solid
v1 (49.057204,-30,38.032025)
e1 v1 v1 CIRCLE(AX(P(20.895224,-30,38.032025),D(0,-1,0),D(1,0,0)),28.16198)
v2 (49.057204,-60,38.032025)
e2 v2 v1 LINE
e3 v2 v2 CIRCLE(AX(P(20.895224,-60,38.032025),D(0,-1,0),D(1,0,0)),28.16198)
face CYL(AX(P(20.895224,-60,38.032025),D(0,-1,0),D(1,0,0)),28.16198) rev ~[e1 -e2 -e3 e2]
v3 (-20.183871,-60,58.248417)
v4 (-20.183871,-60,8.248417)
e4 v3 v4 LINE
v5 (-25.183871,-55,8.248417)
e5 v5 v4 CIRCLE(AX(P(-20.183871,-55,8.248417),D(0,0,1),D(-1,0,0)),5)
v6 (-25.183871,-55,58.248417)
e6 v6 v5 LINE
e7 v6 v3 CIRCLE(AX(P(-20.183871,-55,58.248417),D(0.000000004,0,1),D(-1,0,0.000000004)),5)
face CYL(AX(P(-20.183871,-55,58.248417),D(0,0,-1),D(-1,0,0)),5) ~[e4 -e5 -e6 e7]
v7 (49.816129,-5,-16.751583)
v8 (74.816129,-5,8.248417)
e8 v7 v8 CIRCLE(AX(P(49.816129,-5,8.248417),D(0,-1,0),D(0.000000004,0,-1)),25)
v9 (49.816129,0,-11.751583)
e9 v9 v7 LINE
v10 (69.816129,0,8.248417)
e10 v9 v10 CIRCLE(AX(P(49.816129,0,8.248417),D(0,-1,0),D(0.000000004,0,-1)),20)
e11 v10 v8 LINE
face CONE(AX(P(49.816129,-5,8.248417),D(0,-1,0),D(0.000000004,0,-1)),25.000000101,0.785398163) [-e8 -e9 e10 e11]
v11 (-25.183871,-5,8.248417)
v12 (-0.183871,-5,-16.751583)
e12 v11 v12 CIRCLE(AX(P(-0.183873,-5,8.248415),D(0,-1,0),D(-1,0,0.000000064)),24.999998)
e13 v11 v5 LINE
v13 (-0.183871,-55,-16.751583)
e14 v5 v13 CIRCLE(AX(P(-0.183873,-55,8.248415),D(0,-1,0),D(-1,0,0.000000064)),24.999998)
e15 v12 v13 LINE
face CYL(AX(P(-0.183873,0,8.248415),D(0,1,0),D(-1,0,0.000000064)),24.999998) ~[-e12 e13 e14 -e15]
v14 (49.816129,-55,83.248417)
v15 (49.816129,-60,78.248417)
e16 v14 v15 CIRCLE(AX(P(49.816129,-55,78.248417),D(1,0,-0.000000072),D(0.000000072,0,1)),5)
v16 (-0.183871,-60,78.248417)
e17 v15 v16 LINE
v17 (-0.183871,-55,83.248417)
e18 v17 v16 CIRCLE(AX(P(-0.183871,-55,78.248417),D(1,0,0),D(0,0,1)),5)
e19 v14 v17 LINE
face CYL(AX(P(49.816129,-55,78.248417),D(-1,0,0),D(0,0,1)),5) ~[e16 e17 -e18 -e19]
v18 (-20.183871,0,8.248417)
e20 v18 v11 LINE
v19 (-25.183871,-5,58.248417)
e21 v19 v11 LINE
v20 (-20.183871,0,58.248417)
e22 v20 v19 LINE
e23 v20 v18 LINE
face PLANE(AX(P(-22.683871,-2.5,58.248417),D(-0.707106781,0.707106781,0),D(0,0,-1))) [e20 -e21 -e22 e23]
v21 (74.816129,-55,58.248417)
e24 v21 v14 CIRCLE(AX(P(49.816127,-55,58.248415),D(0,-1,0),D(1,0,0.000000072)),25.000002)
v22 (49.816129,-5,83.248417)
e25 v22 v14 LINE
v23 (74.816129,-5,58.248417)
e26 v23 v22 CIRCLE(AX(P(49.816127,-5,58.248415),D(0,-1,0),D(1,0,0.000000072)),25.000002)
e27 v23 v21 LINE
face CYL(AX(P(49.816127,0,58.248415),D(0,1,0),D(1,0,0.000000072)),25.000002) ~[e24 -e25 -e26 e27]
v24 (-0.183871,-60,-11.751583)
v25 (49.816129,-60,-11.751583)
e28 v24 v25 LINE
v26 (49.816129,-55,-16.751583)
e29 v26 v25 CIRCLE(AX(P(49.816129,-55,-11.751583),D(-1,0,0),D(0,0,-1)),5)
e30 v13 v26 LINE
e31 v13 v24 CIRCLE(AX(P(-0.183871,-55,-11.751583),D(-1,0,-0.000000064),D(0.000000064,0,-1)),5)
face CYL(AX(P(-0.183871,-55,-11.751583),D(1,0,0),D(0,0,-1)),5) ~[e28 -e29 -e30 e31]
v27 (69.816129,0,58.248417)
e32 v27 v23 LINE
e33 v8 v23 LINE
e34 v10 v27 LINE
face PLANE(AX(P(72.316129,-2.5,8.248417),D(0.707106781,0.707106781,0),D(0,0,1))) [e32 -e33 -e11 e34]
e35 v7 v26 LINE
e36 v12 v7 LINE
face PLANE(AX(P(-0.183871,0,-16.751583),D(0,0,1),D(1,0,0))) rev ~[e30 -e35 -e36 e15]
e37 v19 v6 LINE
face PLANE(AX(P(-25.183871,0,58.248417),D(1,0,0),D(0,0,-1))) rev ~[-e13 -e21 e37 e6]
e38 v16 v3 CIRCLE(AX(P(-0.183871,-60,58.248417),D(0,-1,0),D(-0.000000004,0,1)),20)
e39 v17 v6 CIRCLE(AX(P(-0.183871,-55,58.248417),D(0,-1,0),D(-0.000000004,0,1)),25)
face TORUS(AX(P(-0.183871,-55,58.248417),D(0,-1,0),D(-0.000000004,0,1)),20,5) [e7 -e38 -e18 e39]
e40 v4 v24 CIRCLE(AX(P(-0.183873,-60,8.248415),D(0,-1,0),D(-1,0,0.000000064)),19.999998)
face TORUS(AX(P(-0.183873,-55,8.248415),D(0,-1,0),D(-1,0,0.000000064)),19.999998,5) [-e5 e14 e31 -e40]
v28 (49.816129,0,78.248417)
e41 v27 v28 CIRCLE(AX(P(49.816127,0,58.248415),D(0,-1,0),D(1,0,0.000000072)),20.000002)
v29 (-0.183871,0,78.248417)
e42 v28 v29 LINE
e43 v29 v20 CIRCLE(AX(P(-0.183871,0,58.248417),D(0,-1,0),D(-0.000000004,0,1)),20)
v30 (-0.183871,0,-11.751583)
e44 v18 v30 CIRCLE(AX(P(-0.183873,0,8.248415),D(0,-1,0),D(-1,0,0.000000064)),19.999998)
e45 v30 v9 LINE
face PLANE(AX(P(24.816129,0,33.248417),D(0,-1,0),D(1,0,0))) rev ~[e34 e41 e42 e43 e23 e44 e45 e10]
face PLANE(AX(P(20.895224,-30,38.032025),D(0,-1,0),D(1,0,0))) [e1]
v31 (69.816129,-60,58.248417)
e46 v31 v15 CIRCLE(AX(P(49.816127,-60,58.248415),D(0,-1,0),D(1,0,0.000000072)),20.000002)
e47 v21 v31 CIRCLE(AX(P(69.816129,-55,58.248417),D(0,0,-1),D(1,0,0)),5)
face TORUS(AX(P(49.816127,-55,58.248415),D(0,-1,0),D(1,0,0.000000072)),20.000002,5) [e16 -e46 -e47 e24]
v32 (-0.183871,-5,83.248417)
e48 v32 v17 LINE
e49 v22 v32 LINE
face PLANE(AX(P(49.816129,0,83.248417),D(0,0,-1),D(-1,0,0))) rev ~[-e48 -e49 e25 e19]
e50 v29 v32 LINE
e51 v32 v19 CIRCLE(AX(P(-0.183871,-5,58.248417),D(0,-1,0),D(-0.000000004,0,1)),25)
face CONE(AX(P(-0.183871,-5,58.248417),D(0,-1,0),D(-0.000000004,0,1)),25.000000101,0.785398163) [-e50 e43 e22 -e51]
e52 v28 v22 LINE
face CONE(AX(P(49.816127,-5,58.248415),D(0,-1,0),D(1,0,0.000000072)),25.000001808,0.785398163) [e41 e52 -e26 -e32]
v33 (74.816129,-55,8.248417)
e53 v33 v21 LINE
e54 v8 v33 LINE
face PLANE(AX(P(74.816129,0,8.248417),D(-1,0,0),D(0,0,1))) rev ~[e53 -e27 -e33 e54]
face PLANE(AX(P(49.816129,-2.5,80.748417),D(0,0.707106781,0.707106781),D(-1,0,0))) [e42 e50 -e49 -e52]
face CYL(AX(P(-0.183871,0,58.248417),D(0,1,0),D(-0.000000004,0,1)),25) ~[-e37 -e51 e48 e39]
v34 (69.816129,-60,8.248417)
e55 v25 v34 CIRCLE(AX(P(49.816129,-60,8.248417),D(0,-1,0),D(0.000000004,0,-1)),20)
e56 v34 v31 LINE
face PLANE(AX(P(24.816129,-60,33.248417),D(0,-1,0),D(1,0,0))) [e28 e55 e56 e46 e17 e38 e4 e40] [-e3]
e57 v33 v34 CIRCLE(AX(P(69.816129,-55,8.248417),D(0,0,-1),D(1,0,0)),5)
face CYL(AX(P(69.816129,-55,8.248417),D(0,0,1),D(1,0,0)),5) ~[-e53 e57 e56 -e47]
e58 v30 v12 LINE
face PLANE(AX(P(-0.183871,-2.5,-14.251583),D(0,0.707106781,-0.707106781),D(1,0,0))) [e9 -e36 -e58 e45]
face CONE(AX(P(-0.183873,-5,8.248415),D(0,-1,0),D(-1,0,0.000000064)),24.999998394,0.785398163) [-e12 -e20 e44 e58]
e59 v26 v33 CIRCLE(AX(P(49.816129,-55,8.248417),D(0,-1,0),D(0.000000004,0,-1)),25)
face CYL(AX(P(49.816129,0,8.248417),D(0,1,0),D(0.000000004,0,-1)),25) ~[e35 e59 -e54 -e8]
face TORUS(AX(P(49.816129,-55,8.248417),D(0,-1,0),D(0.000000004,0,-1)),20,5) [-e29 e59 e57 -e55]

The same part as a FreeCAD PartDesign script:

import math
import FreeCAD as App
import Part
import Sketcher
from FreeCAD import Vector
Q = App.Units.Quantity


def edges_at(feature, points):
    """Names of the edges that pass closest to the given points."""
    edges = feature.Shape.Edges
    near = lambda p: min(range(len(edges)), key=lambda i: edges[i].distToShape(Part.Vertex(*p))[0])
    return sorted({f"Edge{near(p) + 1}" for p in points})

doc = App.newDocument("Part")
body = doc.addObject("PartDesign::Body", "Body")

# Sketch on XZ plane
sketch1 = doc.addObject("Sketcher::SketchObject", "Sketch")
body.addObject(sketch1)
sketch1.AttachmentSupport = (doc.XZ_Plane, [""])
sketch1.MapMode = "FlatFace"
sketch1.addGeometry([
    Part.LineSegment(Vector(50, 83, 0), Vector(0, 83, 0)),  # 0
    Part.ArcOfCircle(Part.Circle(Vector(0, 58, 0), Vector(0, 0, 1), 25), math.radians(90), math.radians(180)),  # 1
    Part.LineSegment(Vector(-25, 58, 0), Vector(-25, 8, 0)),  # 2
    Part.ArcOfCircle(Part.Circle(Vector(0, 8, 0), Vector(0, 0, 1), 25), math.radians(180), math.radians(270)),  # 3
    Part.LineSegment(Vector(0, -17, 0), Vector(50, -17, 0)),  # 4
    Part.ArcOfCircle(Part.Circle(Vector(50, 8, 0), Vector(0, 0, 1), 25), math.radians(-90), math.radians(0)),  # 5
    Part.LineSegment(Vector(75, 8, 0), Vector(75, 58, 0)),  # 6
    Part.ArcOfCircle(Part.Circle(Vector(50, 58, 0), Vector(0, 0, 1), 25), math.radians(0), math.radians(90)),  # 7
], False)
sketch1.addConstraint([
    Sketcher.Constraint("Tangent", 0, 2, 1, 1),
    Sketcher.Constraint("Tangent", 1, 2, 2, 1),
    Sketcher.Constraint("Tangent", 2, 2, 3, 1),
    Sketcher.Constraint("Tangent", 3, 2, 4, 1),
    Sketcher.Constraint("Tangent", 4, 2, 5, 1),
    Sketcher.Constraint("Tangent", 5, 2, 6, 1),
    Sketcher.Constraint("Tangent", 6, 2, 7, 1),
    Sketcher.Constraint("Tangent", 7, 2, 0, 1),
    Sketcher.Constraint("Horizontal", 0),
    Sketcher.Constraint("Vertical", 2),
    Sketcher.Constraint("Horizontal", 4),
    Sketcher.Constraint("Vertical", 6),
    Sketcher.Constraint("Equal", 1, 3),
    Sketcher.Constraint("Equal", 3, 5),
    Sketcher.Constraint("Equal", 5, 7),
    Sketcher.Constraint("Equal", 4, 2),
    Sketcher.Constraint("Radius", 1, Q("25 mm")),
    Sketcher.Constraint("DistanceX", 0, 2, 0, 1, Q("50 mm")),
    Sketcher.Constraint("DistanceX", 1, 3, -1, 1, Q("0.183871 mm")),
    Sketcher.Constraint("DistanceY", -1, 1, 1, 3, Q("58.248417 mm")),
])
pad1 = doc.addObject("PartDesign::Pad", "Pad")
body.addObject(pad1)
pad1.Profile = sketch1
pad1.Length = 60
doc.recompute()

fillet = doc.addObject("PartDesign::Fillet", "Fillet")
body.addObject(fillet)
fillet.Base = (pad1, edges_at(pad1, [
    (74.816, -60, 33.248),
    (67.494, -60, 75.926),
    (24.816, -60, 83.248),
    (-17.862, -60, 75.926),
    (-25.184, -60, 33.248),
    (-17.862, -60, -9.429),
    (24.816, -60, -16.752),
    (67.494, -60, -9.429),
]))
fillet.Radius = 5
doc.recompute()

chamfer = doc.addObject("PartDesign::Chamfer", "Chamfer")
body.addObject(chamfer)
chamfer.Base = (fillet, edges_at(fillet, [
    (74.816, 0, 33.248),
    (67.494, 0, 75.926),
    (24.816, 0, 83.248),
    (-17.862, 0, 75.926),
    (-25.184, 0, 33.248),
    (-17.862, 0, -9.429),
    (24.816, 0, -16.752),
    (67.494, 0, -9.429),
]))
chamfer.Size = 5

# Sketch on XZ plane
sketch2 = doc.addObject("Sketcher::SketchObject", "Sketch001")
body.addObject(sketch2)
sketch2.AttachmentSupport = (doc.XZ_Plane, [""])
sketch2.MapMode = "FlatFace"
sketch2.AttachmentOffset = App.Placement(Vector(0, 0, 60), App.Rotation())
sketch2.addGeometry(Part.Circle(Vector(21, 38, 0), Vector(0, 0, 1), 28), False)
sketch2.addConstraint([
    Sketcher.Constraint("Diameter", 0, Q("56.32396 mm")),
    Sketcher.Constraint("DistanceX", -1, 1, 0, 3, Q("20.895224 mm")),
    Sketcher.Constraint("DistanceY", -1, 1, 0, 3, Q("38.032025 mm")),
])
pocket1 = doc.addObject("PartDesign::Pocket", "Pocket")
body.addObject(pocket1)
pocket1.Profile = sketch2
pocket1.Length = 30

doc.recompute()
